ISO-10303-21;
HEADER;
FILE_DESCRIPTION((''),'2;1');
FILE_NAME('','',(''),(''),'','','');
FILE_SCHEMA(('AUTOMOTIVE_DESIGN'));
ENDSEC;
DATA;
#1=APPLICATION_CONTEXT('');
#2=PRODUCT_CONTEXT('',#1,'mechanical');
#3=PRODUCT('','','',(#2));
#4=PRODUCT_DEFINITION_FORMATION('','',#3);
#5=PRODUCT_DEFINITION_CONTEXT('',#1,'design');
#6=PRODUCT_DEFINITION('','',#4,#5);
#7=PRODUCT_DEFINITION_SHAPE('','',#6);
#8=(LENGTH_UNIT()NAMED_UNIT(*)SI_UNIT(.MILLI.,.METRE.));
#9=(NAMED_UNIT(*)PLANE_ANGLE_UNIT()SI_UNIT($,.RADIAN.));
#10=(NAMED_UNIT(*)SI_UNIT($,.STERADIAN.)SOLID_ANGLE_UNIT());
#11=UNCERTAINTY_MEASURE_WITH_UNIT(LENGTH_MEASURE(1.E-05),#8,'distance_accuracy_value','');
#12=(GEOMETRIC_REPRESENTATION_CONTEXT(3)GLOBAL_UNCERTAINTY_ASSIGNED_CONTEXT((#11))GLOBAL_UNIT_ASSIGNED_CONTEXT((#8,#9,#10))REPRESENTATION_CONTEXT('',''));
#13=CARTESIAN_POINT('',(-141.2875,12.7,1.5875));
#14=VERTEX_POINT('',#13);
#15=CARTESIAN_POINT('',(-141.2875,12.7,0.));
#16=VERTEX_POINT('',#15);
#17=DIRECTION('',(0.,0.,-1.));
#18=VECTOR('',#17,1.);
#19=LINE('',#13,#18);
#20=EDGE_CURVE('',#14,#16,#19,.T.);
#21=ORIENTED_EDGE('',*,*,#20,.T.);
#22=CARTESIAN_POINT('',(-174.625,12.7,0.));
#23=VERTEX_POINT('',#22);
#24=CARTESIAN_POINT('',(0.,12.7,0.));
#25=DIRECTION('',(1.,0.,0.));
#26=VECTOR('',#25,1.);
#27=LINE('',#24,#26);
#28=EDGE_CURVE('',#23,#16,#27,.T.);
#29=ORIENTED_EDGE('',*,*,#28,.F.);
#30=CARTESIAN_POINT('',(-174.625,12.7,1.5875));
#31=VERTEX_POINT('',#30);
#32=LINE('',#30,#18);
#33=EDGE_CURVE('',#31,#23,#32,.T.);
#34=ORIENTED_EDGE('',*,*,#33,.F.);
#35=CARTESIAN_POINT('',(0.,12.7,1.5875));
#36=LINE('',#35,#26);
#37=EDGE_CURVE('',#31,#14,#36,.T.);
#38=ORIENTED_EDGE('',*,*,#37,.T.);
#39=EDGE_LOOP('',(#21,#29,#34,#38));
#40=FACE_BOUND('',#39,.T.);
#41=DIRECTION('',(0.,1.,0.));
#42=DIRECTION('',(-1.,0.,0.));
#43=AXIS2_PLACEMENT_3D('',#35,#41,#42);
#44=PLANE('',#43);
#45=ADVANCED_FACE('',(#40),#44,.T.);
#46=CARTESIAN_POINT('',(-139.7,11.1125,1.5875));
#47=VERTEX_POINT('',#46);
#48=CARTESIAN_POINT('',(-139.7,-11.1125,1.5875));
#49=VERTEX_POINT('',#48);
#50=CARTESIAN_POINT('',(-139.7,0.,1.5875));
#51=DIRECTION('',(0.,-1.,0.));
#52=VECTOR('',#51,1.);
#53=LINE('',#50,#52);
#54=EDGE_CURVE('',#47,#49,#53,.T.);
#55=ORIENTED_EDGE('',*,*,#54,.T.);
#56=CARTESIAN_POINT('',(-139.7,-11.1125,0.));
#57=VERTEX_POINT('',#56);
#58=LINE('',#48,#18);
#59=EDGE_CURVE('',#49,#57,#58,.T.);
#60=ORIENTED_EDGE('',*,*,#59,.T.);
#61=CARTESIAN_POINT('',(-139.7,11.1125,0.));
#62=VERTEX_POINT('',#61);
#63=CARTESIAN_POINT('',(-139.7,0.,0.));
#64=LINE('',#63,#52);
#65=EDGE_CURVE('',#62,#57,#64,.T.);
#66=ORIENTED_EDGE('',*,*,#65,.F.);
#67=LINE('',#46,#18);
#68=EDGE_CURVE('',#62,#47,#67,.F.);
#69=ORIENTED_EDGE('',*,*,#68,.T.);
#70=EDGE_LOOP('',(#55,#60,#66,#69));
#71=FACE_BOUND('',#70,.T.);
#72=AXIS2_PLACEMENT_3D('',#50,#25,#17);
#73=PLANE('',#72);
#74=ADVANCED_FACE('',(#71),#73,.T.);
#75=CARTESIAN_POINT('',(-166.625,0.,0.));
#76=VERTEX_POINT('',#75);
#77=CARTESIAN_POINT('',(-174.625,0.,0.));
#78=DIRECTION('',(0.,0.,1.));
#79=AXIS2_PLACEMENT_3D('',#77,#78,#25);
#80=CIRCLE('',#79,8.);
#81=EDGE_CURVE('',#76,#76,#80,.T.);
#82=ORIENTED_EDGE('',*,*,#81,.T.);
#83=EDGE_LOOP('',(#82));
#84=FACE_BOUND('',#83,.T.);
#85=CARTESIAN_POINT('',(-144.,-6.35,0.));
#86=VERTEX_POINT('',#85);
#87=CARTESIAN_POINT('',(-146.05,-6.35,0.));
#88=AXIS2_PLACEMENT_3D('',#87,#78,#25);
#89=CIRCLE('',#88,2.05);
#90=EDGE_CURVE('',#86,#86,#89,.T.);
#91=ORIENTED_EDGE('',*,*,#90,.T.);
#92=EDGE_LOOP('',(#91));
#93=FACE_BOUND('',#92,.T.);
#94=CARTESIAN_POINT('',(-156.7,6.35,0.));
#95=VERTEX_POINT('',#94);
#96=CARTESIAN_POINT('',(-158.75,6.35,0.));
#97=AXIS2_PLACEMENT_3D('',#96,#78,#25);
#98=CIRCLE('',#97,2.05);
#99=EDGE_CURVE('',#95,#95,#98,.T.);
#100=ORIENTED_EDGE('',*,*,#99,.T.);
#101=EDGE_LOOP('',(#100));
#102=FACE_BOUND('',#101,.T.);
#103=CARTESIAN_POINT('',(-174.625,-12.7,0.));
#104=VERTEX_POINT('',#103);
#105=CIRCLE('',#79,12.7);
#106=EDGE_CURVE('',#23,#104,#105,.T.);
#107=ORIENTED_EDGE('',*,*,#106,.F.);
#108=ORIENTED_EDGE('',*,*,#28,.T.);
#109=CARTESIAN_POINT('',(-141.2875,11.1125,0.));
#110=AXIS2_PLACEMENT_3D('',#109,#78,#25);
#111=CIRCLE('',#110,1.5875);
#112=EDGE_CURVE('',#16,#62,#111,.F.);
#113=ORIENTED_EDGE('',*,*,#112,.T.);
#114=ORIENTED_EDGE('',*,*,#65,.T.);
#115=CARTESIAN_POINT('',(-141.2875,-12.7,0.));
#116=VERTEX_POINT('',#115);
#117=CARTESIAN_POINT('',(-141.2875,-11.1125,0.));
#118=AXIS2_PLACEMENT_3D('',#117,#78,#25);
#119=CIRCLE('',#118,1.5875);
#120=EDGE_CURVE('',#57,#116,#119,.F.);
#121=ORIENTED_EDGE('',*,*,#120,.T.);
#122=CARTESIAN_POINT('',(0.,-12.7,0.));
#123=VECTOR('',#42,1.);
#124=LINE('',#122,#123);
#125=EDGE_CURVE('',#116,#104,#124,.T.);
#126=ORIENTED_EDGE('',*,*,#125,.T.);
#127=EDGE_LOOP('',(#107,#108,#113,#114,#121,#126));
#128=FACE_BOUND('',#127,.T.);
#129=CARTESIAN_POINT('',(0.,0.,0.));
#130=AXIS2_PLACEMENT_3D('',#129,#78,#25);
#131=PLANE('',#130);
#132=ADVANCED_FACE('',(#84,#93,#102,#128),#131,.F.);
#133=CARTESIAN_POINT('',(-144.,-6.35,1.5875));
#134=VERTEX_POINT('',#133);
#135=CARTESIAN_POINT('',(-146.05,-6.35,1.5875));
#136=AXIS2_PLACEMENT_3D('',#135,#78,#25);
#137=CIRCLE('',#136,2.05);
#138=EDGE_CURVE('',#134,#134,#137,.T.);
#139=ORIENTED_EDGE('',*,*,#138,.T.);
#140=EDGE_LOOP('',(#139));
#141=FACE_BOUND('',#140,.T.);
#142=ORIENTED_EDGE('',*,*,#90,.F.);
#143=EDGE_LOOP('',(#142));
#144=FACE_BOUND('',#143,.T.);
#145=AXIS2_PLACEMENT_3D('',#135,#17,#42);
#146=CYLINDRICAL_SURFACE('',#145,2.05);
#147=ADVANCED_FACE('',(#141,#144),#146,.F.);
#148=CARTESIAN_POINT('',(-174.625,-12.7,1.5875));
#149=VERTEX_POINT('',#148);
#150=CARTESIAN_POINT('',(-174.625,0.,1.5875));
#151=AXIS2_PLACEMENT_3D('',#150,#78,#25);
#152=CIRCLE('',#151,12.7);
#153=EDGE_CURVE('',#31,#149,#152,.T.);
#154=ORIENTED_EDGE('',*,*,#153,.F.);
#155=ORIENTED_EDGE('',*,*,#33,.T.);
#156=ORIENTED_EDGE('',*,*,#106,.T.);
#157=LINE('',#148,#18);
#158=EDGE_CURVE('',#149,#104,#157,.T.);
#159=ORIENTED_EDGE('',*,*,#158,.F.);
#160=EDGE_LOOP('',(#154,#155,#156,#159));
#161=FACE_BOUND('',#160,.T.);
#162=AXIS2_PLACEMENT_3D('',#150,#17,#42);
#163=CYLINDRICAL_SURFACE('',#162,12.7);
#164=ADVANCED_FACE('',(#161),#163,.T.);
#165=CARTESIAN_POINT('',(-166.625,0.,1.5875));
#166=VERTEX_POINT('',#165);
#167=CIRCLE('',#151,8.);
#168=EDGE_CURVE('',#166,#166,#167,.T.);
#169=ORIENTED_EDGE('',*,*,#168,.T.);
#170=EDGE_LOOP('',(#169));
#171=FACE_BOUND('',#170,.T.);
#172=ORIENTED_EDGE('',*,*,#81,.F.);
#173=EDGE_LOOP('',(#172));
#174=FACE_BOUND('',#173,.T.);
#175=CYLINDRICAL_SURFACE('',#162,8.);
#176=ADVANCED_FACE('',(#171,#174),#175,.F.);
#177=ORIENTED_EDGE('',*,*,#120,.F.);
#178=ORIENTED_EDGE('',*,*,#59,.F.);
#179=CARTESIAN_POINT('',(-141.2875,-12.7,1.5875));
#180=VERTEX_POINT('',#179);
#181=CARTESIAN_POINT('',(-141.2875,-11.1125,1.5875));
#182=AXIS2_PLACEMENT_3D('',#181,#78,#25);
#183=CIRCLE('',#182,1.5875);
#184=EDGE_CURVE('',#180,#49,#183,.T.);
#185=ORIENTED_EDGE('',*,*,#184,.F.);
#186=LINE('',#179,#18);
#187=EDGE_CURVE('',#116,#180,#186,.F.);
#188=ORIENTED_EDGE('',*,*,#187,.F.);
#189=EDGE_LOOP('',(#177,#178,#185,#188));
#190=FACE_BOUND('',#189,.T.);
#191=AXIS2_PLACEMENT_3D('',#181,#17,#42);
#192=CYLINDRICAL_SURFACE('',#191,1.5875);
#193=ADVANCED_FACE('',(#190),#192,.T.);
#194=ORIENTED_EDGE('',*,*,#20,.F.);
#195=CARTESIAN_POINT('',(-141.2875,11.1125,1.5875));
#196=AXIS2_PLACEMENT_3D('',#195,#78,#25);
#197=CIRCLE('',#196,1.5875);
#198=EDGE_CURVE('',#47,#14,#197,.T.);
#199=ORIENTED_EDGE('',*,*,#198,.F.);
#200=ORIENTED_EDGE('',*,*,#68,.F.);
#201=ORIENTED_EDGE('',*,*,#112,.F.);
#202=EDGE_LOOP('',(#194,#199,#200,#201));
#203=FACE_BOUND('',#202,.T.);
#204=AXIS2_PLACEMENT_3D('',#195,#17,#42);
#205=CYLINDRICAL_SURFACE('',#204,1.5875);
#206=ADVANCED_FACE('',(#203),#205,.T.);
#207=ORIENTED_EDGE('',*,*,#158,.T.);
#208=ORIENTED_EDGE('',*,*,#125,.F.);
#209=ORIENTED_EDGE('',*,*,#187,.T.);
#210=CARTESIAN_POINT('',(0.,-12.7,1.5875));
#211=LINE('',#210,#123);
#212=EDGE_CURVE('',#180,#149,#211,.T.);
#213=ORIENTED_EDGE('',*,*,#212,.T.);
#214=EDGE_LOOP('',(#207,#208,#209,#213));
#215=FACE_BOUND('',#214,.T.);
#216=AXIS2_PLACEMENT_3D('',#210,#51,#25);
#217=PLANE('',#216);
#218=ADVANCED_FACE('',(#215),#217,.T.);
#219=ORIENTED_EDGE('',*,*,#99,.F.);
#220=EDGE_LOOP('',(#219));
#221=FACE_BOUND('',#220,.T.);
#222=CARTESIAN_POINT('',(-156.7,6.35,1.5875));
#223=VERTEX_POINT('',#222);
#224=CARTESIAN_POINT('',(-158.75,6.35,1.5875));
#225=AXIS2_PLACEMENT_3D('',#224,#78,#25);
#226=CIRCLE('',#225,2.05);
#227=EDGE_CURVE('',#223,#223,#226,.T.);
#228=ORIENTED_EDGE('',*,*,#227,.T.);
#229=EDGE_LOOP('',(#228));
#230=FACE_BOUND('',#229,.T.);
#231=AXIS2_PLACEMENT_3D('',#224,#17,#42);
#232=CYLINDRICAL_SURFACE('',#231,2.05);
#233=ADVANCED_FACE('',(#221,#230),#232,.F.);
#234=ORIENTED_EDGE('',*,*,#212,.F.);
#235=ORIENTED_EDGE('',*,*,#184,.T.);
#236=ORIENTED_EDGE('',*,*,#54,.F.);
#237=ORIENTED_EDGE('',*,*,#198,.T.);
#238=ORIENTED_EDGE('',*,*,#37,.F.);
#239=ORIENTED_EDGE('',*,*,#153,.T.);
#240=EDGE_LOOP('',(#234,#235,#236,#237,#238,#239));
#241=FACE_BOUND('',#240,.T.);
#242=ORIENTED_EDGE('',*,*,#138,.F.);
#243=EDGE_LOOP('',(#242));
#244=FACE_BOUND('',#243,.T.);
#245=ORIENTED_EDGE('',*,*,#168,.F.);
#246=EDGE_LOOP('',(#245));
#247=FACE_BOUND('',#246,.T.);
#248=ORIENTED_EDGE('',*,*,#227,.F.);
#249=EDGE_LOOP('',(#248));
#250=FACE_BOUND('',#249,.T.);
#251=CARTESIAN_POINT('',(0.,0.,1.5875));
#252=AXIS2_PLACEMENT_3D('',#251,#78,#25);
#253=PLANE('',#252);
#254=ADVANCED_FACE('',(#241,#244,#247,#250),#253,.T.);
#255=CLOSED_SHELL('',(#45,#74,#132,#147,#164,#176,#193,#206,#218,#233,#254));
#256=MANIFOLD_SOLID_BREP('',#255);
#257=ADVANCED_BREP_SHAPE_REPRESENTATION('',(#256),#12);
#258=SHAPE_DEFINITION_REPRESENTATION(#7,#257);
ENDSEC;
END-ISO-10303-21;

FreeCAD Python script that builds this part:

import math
import FreeCAD as App
import Part
import Sketcher
Q = App.Units.Quantity


def edges_at(feature, points):
    """Names of the edges that pass closest to the given points."""
    edges = feature.Shape.Edges
    near = lambda p: min(range(len(edges)), key=lambda i: edges[i].distToShape(Part.Vertex(*p))[0])
    return sorted({f"Edge{near(p) + 1}" for p in points})

doc = App.newDocument("Part")
body = doc.addObject("PartDesign::Body", "Body")

# Sketch on XY plane
sketch1 = doc.addObject("Sketcher::SketchObject", "Sketch")
body.addObject(sketch1)
sketch1.AttachmentSupport = (doc.XY_Plane, [""])
sketch1.MapMode = "FlatFace"
sketch1.addGeometry([
    Part.LineSegment(App.Vector(-139.7, 12.7, 0), App.Vector(-174.6, 12.7, 0)),  # 0
    Part.ArcOfCircle(Part.Circle(App.Vector(-174.6, 0, 0), App.Vector(0, 0, 1), 12.7), math.radians(90), math.radians(270)),  # 1
    Part.LineSegment(App.Vector(-174.6, -12.7, 0), App.Vector(-139.7, -12.7, 0)),  # 2
    Part.LineSegment(App.Vector(-139.7, -12.7, 0), App.Vector(-139.7, 12.7, 0)),  # 3
    Part.Circle(App.Vector(-146.1, -6.3, 0), App.Vector(0, 0, 1), 2),  # 4
    Part.Circle(App.Vector(-174.6, 0, 0), App.Vector(0, 0, 1), 8),  # 5
    Part.Circle(App.Vector(-158.8, 6.3, 0), App.Vector(0, 0, 1), 2),  # 6
], False)
sketch1.addConstraint([
    Sketcher.Constraint("Tangent", 0, 2, 1, 1),
    Sketcher.Constraint("Tangent", 1, 2, 2, 1),
    Sketcher.Constraint("Coincident", 2, 2, 3, 1),
    Sketcher.Constraint("Coincident", 3, 2, 0, 1),
    Sketcher.Constraint("Horizontal", 0),
    Sketcher.Constraint("Horizontal", 2),
    Sketcher.Constraint("Vertical", 3),
    Sketcher.Constraint("Coincident", 5, 3, 1, 3),
    Sketcher.Constraint("Equal", 4, 6),
    Sketcher.Constraint("PointOnObject", 1, 3, -1),
    Sketcher.Constraint("Radius", 1, Q("0.5 in")),
    Sketcher.Constraint("DistanceX", 2, 2, -1, 1, Q("5.5 in")),
    Sketcher.Constraint("DistanceX", 6, 3, 4, 3, Q("0.5 in")),
    Sketcher.Constraint("DistanceY", 4, 3, 6, 3, Q("0.5 in")),
    Sketcher.Constraint("Diameter", 4, Q("4.1 mm")),
    Sketcher.Constraint("Diameter", 5, Q("16 mm")),
    Sketcher.Constraint("DistanceX", 0, 2, 0, 1, Q("1.375 in")),
    Sketcher.Constraint("DistanceX", 4, 3, -1, 1, Q("5.75 in")),
    Sketcher.Constraint("DistanceY", 4, 3, -1, 1, Q("0.25 in")),
])
pad1 = doc.addObject("PartDesign::Pad", "Pad")
body.addObject(pad1)
pad1.Profile = sketch1
pad1.Length = Q("0.0625 in")
doc.recompute()

fillet = doc.addObject("PartDesign::Fillet", "Fillet")
body.addObject(fillet)
fillet.Base = (pad1, edges_at(pad1, [(-139.7, 12.7, 0.794), (-139.7, -12.7, 0.794)]))
fillet.Radius = Q("0.0625 in")

doc.recompute()
